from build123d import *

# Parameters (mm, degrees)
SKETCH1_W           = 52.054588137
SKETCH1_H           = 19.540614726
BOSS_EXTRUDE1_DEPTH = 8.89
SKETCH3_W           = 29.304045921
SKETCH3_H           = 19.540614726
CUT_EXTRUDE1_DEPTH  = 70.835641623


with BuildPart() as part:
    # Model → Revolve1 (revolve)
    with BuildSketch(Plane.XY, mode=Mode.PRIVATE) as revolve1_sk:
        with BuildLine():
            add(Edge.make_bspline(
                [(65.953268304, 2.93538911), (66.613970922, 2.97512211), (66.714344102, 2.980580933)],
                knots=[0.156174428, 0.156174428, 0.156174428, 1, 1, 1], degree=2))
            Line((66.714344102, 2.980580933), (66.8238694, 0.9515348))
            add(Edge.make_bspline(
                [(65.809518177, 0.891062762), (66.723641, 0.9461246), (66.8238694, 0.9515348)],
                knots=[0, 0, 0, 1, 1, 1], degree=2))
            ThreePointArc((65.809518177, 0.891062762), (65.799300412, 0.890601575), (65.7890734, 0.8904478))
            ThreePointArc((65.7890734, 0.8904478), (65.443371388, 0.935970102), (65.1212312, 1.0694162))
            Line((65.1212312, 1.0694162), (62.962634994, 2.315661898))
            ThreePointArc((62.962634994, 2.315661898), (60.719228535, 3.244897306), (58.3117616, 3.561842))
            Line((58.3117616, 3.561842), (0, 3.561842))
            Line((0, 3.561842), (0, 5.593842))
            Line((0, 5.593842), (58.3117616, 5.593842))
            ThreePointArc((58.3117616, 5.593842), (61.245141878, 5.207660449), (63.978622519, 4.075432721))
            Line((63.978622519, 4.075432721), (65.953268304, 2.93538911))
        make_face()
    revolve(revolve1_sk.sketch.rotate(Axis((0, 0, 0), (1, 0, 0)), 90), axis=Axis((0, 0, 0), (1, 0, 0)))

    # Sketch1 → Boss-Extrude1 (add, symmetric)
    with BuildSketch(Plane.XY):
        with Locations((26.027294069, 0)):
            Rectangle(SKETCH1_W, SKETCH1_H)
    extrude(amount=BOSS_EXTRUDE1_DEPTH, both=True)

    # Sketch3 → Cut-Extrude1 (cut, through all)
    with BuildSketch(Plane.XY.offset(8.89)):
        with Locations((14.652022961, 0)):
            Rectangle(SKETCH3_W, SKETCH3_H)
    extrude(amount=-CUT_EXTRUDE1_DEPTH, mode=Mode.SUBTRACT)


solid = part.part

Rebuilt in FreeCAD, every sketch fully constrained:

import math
import FreeCAD as App
import Part
import Sketcher

V = App.Vector
Q = App.Units.Quantity

doc = App.newDocument("Part")
body = doc.addObject("PartDesign::Body", "Body")

# Sketch on XY plane
sketch1 = doc.addObject("Sketcher::SketchObject", "Sketch")
body.addObject(sketch1)
sketch1.AttachmentSupport = (doc.XY_Plane, [""])
sketch1.MapMode = "FlatFace"
sketch1.addGeometry([
    Part.BSplineCurve([V(65.953268, 2.935389, 0), V(66.613971, 2.975122, 0), V(66.714344, 2.980581, 0)], [3, 3], [0.156174428, 1], False, 2, [1, 1, 1], False),  # 0
    Part.LineSegment(V(65.953268, 2.935389, 0), V(63.978623, 4.075433, 0)),  # 1
    Part.ArcOfCircle(Part.Circle(V(58.311762, -5.740019, 0), V(0, 0, 1), 11.333861), math.radians(60.000406), math.radians(90)),  # 2
    Part.LineSegment(V(58.311762, 5.593842, 0), V(0, 5.593842, 0)),  # 3
    Part.LineSegment(V(0, 5.593842, 0), V(0, 3.561842, 0)),  # 4
    Part.LineSegment(V(0, 3.561842, 0), V(58.311762, 3.561842, 0)),  # 5
    Part.ArcOfCircle(Part.Circle(V(58.311762, -5.740019, 0), V(0, 0, 1), 9.301861), math.radians(60.000406), math.radians(90)),  # 6
    Part.LineSegment(V(62.962635, 2.315662, 0), V(65.121231, 1.069416, 0)),  # 7
    Part.ArcOfCircle(Part.Circle(V(65.789109, 2.226132, 0), V(0, 0, 1), 1.335684), math.radians(-120.001769), math.radians(-90.001532)),  # 8
    Part.ArcOfCircle(Part.Circle(V(65.789073, 1.230604, 0), V(0, 0, 1), 0.340156), math.radians(-90.000003), math.radians(-86.554217)),  # 9
    Part.BSplineCurve([V(65.809518, 0.891063, 0), V(66.723641, 0.946125, 0), V(66.823869, 0.951535, 0)], [3, 3], [0, 1], False, 2, [1, 1, 1], False),  # 10
    Part.LineSegment(V(66.823869, 0.951535, 0), V(66.714344, 2.980581, 0)),  # 11
], False)
sketch1.addConstraint([
    Sketcher.Constraint("Block", 0),
    Sketcher.Constraint("Block", 10),
    Sketcher.Constraint("Coincident", 0, 1, 1, 1),
    Sketcher.Constraint("Coincident", 1, 2, 2, 1),
    Sketcher.Constraint("Coincident", 2, 2, 3, 1),
    Sketcher.Constraint("Coincident", 3, 2, 4, 1),
    Sketcher.Constraint("Coincident", 4, 2, 5, 1),
    Sketcher.Constraint("Coincident", 5, 2, 6, 2),
    Sketcher.Constraint("Coincident", 6, 1, 7, 1),
    Sketcher.Constraint("Coincident", 7, 2, 8, 1),
    Sketcher.Constraint("Coincident", 8, 2, 9, 1),
    Sketcher.Constraint("Coincident", 9, 2, 10, 1),
    Sketcher.Constraint("Coincident", 10, 2, 11, 1),
    Sketcher.Constraint("Coincident", 11, 2, 0, 2),
    Sketcher.Constraint("Horizontal", 3),
    Sketcher.Constraint("Vertical", 4),
    Sketcher.Constraint("Horizontal", 5),
    Sketcher.Constraint("Coincident", 6, 3, 2, 3),
    Sketcher.Constraint("PointOnObject", 3, 2, -2),
    Sketcher.Constraint("DistanceY", 4, 2, 4, 1, Q("0.08 in")),
    Sketcher.Constraint("Radius", 2, Q("11.333861 mm")),
    Sketcher.Constraint("Radius", 8, Q("1.335684 mm")),
    Sketcher.Constraint("Radius", 9, Q("0.340156 mm")),
    Sketcher.Constraint("DistanceX", 3, 2, 3, 1, Q("58.311762 mm")),
    Sketcher.Constraint("DistanceX", 5, 1, 5, 2, Q("58.311762 mm")),
    Sketcher.Constraint("DistanceY", 8, 3, 1, 2, Q("1.849301 mm")),
    Sketcher.Constraint("DistanceY", 9, 2, 6, 1, Q("1.424599 mm")),
    Sketcher.Constraint("Distance", 7, Q("2.492522 mm")),
    Sketcher.Constraint("DistanceX", -1, 1, 2, 3, Q("58.311762 mm")),
    Sketcher.Constraint("DistanceY", 2, 3, -1, 1, Q("5.740019 mm")),
    Sketcher.Constraint("DistanceX", -1, 1, 8, 3, Q("65.789109 mm")),
    Sketcher.Constraint("DistanceX", -1, 1, 7, 2, Q("65.121231 mm")),
    Sketcher.Constraint("DistanceX", 6, 1, 8, 2, Q("2.826438 mm")),
])
revolution = doc.addObject("PartDesign::Revolution", "Revolution")
body.addObject(revolution)
revolution.Profile = sketch1
revolution.ReferenceAxis = (sketch1, ["H_Axis"])
revolution.Angle = 360

# Sketch on XY plane
sketch2 = doc.addObject("Sketcher::SketchObject", "Sketch001")
body.addObject(sketch2)
sketch2.AttachmentSupport = (doc.XY_Plane, [""])
sketch2.MapMode = "FlatFace"
sketch2.addGeometry([
    Part.LineSegment(V(0, 10, 0), V(0, -10, 0)),
    Part.LineSegment(V(0, -10, 0), V(52, -10, 0)),
    Part.LineSegment(V(52, -10, 0), V(52, 10, 0)),
    Part.LineSegment(V(52, 10, 0), V(0, 10, 0)),
], False)
sketch2.addConstraint([
    Sketcher.Constraint("Coincident", 0, 2, 1, 1),
    Sketcher.Constraint("Coincident", 1, 2, 2, 1),
    Sketcher.Constraint("Coincident", 2, 2, 3, 1),
    Sketcher.Constraint("Coincident", 3, 2, 0, 1),
    Sketcher.Constraint("Vertical", 0),
    Sketcher.Constraint("Horizontal", 1),
    Sketcher.Constraint("Vertical", 2),
    Sketcher.Constraint("Horizontal", 3),
    Sketcher.Constraint("Symmetric", 0, 2, 3, 2, -1, 1),
    Sketcher.Constraint("DistanceX", 1, 1, 1, 2, Q("52.054588 mm")),
    Sketcher.Constraint("DistanceY", 0, 2, 0, 1, Q("19.540615 mm")),
])
pad1 = doc.addObject("PartDesign::Pad", "Pad")
body.addObject(pad1)
pad1.Profile = sketch2
pad1.Length = Q("0.7 in")
pad1.Midplane = True

# Sketch on XY plane
sketch3 = doc.addObject("Sketcher::SketchObject", "Sketch002")
body.addObject(sketch3)
sketch3.AttachmentSupport = (doc.XY_Plane, [""])
sketch3.MapMode = "FlatFace"
sketch3.AttachmentOffset = App.Placement(V(0, 0, 0.35 * 25.4), App.Rotation())
sketch3.addGeometry([
    Part.LineSegment(V(0, 10, 0), V(0, -10, 0)),
    Part.LineSegment(V(0, -10, 0), V(29, -10, 0)),
    Part.LineSegment(V(29, -10, 0), V(29, 10, 0)),
    Part.LineSegment(V(29, 10, 0), V(0, 10, 0)),
], False)
sketch3.addConstraint([
    Sketcher.Constraint("Coincident", 0, 2, 1, 1),
    Sketcher.Constraint("Coincident", 1, 2, 2, 1),
    Sketcher.Constraint("Coincident", 2, 2, 3, 1),
    Sketcher.Constraint("Coincident", 3, 2, 0, 1),
    Sketcher.Constraint("Vertical", 0),
    Sketcher.Constraint("Horizontal", 1),
    Sketcher.Constraint("Vertical", 2),
    Sketcher.Constraint("Horizontal", 3),
    Sketcher.Constraint("Symmetric", 0, 2, 3, 2, -1, 1),
    Sketcher.Constraint("DistanceX", 1, 1, 1, 2, Q("29.304046 mm")),
    Sketcher.Constraint("DistanceY", 0, 2, 0, 1, Q("19.540615 mm")),
])
pocket1 = doc.addObject("PartDesign::Pocket", "Pocket")
body.addObject(pocket1)
pocket1.Profile = sketch3
pocket1.Type = "ThroughAll"

doc.recompute()
